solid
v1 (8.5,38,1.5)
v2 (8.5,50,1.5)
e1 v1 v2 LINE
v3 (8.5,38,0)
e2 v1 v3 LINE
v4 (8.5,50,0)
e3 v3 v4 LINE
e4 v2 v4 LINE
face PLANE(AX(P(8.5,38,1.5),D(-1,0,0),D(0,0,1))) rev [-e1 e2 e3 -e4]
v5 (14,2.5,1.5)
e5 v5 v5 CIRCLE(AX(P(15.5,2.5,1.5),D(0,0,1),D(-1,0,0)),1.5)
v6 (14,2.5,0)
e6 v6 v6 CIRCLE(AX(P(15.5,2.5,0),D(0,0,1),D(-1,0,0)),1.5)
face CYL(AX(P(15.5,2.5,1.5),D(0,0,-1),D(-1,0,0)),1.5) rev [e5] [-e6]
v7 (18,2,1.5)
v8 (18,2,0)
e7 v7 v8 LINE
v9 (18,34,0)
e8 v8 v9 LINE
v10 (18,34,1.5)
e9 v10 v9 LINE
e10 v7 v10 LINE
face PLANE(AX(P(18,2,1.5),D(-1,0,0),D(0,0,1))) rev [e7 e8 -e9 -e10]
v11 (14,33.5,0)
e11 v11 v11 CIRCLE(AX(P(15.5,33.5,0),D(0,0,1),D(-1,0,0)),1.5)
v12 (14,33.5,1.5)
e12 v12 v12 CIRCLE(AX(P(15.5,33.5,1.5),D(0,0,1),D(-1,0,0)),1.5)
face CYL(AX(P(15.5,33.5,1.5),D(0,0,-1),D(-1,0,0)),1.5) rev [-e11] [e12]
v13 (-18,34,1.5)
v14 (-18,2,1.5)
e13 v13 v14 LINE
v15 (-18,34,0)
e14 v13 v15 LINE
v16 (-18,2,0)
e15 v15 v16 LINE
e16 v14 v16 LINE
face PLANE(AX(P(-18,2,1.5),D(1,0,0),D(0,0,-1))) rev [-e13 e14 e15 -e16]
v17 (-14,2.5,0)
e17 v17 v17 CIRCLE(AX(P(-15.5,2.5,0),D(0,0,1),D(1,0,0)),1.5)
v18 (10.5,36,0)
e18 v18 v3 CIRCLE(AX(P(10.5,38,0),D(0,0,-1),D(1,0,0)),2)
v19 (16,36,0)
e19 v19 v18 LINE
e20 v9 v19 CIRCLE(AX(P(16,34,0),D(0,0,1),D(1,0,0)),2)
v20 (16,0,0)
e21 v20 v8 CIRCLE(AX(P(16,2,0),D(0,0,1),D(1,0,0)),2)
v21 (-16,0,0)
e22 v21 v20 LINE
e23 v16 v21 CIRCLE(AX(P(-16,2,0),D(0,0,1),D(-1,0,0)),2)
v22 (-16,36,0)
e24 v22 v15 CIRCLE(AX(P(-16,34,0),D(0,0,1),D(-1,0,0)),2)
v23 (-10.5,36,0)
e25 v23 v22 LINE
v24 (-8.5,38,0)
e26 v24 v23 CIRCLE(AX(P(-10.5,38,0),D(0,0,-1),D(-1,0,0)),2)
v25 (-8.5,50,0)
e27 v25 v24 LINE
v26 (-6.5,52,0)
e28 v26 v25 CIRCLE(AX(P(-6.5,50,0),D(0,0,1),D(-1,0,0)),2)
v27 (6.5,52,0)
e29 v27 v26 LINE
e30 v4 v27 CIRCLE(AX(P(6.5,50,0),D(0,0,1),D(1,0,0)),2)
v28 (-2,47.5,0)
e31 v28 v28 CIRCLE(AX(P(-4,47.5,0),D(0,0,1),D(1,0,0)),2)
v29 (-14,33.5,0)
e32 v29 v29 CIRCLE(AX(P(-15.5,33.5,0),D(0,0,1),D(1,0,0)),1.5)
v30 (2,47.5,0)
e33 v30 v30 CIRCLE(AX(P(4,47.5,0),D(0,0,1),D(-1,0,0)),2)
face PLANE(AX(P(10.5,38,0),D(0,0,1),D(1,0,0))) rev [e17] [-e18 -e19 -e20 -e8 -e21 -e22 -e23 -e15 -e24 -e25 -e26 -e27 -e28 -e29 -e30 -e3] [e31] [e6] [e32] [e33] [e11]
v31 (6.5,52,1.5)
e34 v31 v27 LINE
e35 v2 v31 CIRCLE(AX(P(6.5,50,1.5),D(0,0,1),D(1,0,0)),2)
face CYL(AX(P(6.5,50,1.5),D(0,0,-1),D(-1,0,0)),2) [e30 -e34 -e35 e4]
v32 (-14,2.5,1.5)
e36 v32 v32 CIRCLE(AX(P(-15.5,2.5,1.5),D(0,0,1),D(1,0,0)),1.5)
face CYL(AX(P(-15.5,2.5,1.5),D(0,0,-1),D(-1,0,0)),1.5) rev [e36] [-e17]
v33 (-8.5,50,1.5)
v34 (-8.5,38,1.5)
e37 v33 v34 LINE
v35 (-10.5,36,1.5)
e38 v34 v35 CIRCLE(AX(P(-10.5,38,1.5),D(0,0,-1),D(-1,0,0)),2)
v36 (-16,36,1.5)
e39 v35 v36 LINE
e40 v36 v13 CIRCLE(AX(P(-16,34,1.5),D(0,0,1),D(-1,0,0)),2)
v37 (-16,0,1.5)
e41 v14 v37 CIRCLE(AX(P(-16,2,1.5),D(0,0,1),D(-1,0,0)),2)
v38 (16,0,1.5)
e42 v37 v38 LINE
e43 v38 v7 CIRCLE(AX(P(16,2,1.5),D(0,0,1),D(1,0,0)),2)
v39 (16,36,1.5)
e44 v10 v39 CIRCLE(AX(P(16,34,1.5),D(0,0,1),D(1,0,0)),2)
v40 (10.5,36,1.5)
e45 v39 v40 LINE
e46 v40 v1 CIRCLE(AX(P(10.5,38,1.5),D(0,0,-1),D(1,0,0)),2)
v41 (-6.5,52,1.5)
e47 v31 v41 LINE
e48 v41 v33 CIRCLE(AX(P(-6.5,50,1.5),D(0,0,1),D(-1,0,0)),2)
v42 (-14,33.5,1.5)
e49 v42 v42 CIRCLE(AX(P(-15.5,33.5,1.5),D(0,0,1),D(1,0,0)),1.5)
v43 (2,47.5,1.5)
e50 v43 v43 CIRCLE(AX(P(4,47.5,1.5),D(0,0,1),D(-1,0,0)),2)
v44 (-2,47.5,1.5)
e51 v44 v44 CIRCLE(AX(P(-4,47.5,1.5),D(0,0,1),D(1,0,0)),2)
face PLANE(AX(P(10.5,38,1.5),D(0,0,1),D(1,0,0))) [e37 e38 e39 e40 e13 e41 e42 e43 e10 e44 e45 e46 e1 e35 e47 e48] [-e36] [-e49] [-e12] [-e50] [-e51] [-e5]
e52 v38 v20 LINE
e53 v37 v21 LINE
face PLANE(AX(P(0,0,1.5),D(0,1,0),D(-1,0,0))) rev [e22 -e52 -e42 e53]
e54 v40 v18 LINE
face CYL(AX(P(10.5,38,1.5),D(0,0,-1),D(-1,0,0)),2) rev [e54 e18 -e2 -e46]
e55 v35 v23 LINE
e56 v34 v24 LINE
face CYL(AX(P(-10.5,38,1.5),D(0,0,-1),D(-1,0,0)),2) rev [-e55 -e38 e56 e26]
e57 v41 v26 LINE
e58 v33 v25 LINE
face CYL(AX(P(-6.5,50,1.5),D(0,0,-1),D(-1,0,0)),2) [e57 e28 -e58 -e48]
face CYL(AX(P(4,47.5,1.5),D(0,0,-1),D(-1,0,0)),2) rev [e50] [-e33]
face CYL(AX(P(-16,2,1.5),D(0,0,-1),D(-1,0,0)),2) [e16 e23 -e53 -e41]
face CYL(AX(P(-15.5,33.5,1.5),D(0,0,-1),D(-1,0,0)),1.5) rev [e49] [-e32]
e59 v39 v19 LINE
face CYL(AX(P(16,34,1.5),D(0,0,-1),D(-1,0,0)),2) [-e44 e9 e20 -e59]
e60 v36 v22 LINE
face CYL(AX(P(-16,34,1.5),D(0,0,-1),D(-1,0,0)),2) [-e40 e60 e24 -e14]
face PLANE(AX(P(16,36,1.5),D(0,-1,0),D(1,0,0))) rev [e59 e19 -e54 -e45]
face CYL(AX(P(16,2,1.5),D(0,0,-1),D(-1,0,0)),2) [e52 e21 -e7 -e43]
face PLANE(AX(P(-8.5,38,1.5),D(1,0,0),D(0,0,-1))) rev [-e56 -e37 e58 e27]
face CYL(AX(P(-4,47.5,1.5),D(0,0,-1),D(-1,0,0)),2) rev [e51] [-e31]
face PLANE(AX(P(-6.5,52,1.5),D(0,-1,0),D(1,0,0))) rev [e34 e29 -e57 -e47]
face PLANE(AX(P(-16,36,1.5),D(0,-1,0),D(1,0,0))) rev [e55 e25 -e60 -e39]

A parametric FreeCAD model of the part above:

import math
import FreeCAD as App
import Part
import Sketcher

V = App.Vector
Q = App.Units.Quantity

doc = App.newDocument("Part")
body = doc.addObject("PartDesign::Body", "Body")

# Sketch on XY plane
sketch1 = body.newObject("Sketcher::SketchObject", "Sketch")
sketch1.AttachmentSupport = (doc.getObject("XY_Plane"), [""])
sketch1.MapMode = "FlatFace"
sketch1.addGeometry(Part.ArcOfCircle(Part.Circle(V(-16, 2, 0), V(0, 0, 1), 2), math.radians(-180), math.radians(-90)), False)
sketch1.addGeometry(Part.LineSegment(V(-16, 0, 0), V(16, 0, 0)), False)
sketch1.addGeometry(Part.ArcOfCircle(Part.Circle(V(16, 2, 0), V(0, 0, 1), 2), math.radians(-90), math.radians(0)), False)
sketch1.addGeometry(Part.LineSegment(V(18, 2, 0), V(18, 34, 0)), False)
sketch1.addGeometry(Part.ArcOfCircle(Part.Circle(V(16, 34, 0), V(0, 0, 1), 2), math.radians(0), math.radians(90)), False)
sketch1.addGeometry(Part.LineSegment(V(16, 36, 0), V(10.5, 36, 0)), False)
sketch1.addGeometry(Part.ArcOfCircle(Part.Circle(V(10.5, 38, 0), V(0, 0, 1), 2), math.radians(-180), math.radians(-90)), False)
sketch1.addGeometry(Part.LineSegment(V(8.5, 38, 0), V(8.5, 50, 0)), False)
sketch1.addGeometry(Part.ArcOfCircle(Part.Circle(V(6.5, 50, 0), V(0, 0, 1), 2), math.radians(0), math.radians(90)), False)
sketch1.addGeometry(Part.LineSegment(V(6.5, 52, 0), V(-6.5, 52, 0)), False)
sketch1.addGeometry(Part.ArcOfCircle(Part.Circle(V(-6.5, 50, 0), V(0, 0, 1), 2), math.radians(90), math.radians(180)), False)
sketch1.addGeometry(Part.LineSegment(V(-8.5, 50, 0), V(-8.5, 38, 0)), False)
sketch1.addGeometry(Part.ArcOfCircle(Part.Circle(V(-10.5, 38, 0), V(0, 0, 1), 2), math.radians(-90), math.radians(0)), False)
sketch1.addGeometry(Part.LineSegment(V(-10.5, 36, 0), V(-16, 36, 0)), False)
sketch1.addGeometry(Part.ArcOfCircle(Part.Circle(V(-16, 34, 0), V(0, 0, 1), 2), math.radians(90), math.radians(180)), False)
sketch1.addGeometry(Part.LineSegment(V(-18, 34, 0), V(-18, 2, 0)), False)
sketch1.addGeometry(Part.Circle(V(15.5, 2.5, 0), V(0, 0, 1), 1.5), False)
sketch1.addGeometry(Part.Circle(V(-15.5, 2.5, 0), V(0, 0, 1), 1.5), False)
sketch1.addGeometry(Part.Circle(V(15.5, 33.5, 0), V(0, 0, 1), 1.5), False)
sketch1.addGeometry(Part.Circle(V(4, 47.5, 0), V(0, 0, 1), 2), False)
sketch1.addGeometry(Part.Circle(V(-15.5, 33.5, 0), V(0, 0, 1), 1.5), False)
sketch1.addGeometry(Part.Circle(V(-4, 47.5, 0), V(0, 0, 1), 2), False)
sketch1.addConstraint(Sketcher.Constraint("Tangent", 0, 2, 1, 1))
sketch1.addConstraint(Sketcher.Constraint("Tangent", 1, 2, 2, 1))
sketch1.addConstraint(Sketcher.Constraint("Tangent", 2, 2, 3, 1))
sketch1.addConstraint(Sketcher.Constraint("Tangent", 3, 2, 4, 1))
sketch1.addConstraint(Sketcher.Constraint("Tangent", 4, 2, 5, 1))
sketch1.addConstraint(Sketcher.Constraint("Tangent", 5, 2, 6, 2))
sketch1.addConstraint(Sketcher.Constraint("Tangent", 6, 1, 7, 1))
sketch1.addConstraint(Sketcher.Constraint("Tangent", 7, 2, 8, 1))
sketch1.addConstraint(Sketcher.Constraint("Tangent", 8, 2, 9, 1))
sketch1.addConstraint(Sketcher.Constraint("Tangent", 9, 2, 10, 1))
sketch1.addConstraint(Sketcher.Constraint("Tangent", 10, 2, 11, 1))
sketch1.addConstraint(Sketcher.Constraint("Tangent", 11, 2, 12, 2))
sketch1.addConstraint(Sketcher.Constraint("Tangent", 12, 1, 13, 1))
sketch1.addConstraint(Sketcher.Constraint("Tangent", 13, 2, 14, 1))
sketch1.addConstraint(Sketcher.Constraint("Tangent", 14, 2, 15, 1))
sketch1.addConstraint(Sketcher.Constraint("Tangent", 15, 2, 0, 1))
sketch1.addConstraint(Sketcher.Constraint("Horizontal", 1))
sketch1.addConstraint(Sketcher.Constraint("Vertical", 3))
sketch1.addConstraint(Sketcher.Constraint("Horizontal", 5))
sketch1.addConstraint(Sketcher.Constraint("Vertical", 7))
sketch1.addConstraint(Sketcher.Constraint("Horizontal", 9))
sketch1.addConstraint(Sketcher.Constraint("Vertical", 11))
sketch1.addConstraint(Sketcher.Constraint("Horizontal", 13))
sketch1.addConstraint(Sketcher.Constraint("Vertical", 15))
sketch1.addConstraint(Sketcher.Constraint("Equal", 0, 2))
sketch1.addConstraint(Sketcher.Constraint("Equal", 2, 4))
sketch1.addConstraint(Sketcher.Constraint("Equal", 4, 6))
sketch1.addConstraint(Sketcher.Constraint("Equal", 6, 8))
sketch1.addConstraint(Sketcher.Constraint("Equal", 8, 10))
sketch1.addConstraint(Sketcher.Constraint("Equal", 10, 12))
sketch1.addConstraint(Sketcher.Constraint("Equal", 12, 14))
sketch1.addConstraint(Sketcher.Constraint("Equal", 16, 17))
sketch1.addConstraint(Sketcher.Constraint("Equal", 17, 18))
sketch1.addConstraint(Sketcher.Constraint("Equal", 14, 19))
sketch1.addConstraint(Sketcher.Constraint("Equal", 18, 20))
sketch1.addConstraint(Sketcher.Constraint("Equal", 19, 21))
sketch1.addConstraint(Sketcher.Constraint("Symmetric", 0, 2, 1, 2, -1, 1))
sketch1.addConstraint(Sketcher.Constraint("Symmetric", 6, 3, 12, 3, -2))
sketch1.addConstraint(Sketcher.Constraint("Symmetric", 16, 3, 17, 3, -2))
sketch1.addConstraint(Sketcher.Constraint("Symmetric", 18, 3, 20, 3, -2))
sketch1.addConstraint(Sketcher.Constraint("Symmetric", 19, 3, 21, 3, -2))
sketch1.addConstraint(Sketcher.Constraint("Vertical", 16, 3, 18, 3))
sketch1.addConstraint(Sketcher.Constraint("Equal", 1, 3))
sketch1.addConstraint(Sketcher.Constraint("Diameter", 16, Q("3 mm")))
sketch1.addConstraint(Sketcher.Constraint("Diameter", 19, Q("4 mm")))
sketch1.addConstraint(Sketcher.Constraint("DistanceX", 1, 1, 1, 2, Q("32 mm")))
sketch1.addConstraint(Sketcher.Constraint("DistanceX", 9, 2, 9, 1, Q("13 mm")))
sketch1.addConstraint(Sketcher.Constraint("DistanceY", 7, 1, 7, 2, Q("12 mm")))
sketch1.addConstraint(Sketcher.Constraint("DistanceX", -1, 1, 19, 3, Q("4 mm")))
sketch1.addConstraint(Sketcher.Constraint("DistanceX", 6, 3, 16, 3, Q("5 mm")))
sketch1.addConstraint(Sketcher.Constraint("DistanceY", 20, 3, 19, 3, Q("14 mm")))
sketch1.addConstraint(Sketcher.Constraint("DistanceY", -1, 1, 16, 3, Q("2.5 mm")))
sketch1.addConstraint(Sketcher.Constraint("DistanceY", -1, 1, 18, 3, Q("33.5 mm")))
pad1 = body.newObject("PartDesign::Pad", "Pad")
pad1.Profile = sketch1
pad1.Length = 1.5

doc.recompute()
